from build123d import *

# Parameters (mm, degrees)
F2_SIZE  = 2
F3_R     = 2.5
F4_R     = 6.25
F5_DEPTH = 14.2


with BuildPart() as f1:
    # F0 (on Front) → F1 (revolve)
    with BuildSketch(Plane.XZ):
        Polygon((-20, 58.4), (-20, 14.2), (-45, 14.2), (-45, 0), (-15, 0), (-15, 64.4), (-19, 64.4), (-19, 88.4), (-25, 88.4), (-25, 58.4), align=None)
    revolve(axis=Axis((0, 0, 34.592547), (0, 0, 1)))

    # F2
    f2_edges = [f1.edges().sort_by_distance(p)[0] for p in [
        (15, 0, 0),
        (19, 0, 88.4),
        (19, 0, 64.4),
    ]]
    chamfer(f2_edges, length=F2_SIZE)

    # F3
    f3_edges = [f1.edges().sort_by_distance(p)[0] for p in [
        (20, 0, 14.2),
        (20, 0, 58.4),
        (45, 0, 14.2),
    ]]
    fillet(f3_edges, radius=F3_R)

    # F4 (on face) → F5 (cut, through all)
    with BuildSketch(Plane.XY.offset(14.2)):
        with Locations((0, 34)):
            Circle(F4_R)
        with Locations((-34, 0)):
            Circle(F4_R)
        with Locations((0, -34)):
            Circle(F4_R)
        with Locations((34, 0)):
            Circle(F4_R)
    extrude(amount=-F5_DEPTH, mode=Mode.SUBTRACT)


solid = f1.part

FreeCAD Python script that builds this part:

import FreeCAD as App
import Part
import Sketcher
from FreeCAD import Vector


def edges_at(feature, points):
    """Names of the edges that pass closest to the given points."""
    edges = feature.Shape.Edges
    near = lambda p: min(range(len(edges)), key=lambda i: edges[i].distToShape(Part.Vertex(*p))[0])
    return sorted({f"Edge{near(p) + 1}" for p in points})


def add_polygon(sketch, points):
    """Adds a closed chain of lines whose ends are joined by coincident constraints."""
    first, n = sketch.GeometryCount, len(points)
    for a, b in zip(points, points[1:] + points[:1]):
        sketch.addGeometry(Part.LineSegment(App.Vector(*a, 0), App.Vector(*b, 0)), False)
    for i in range(n):
        sketch.addConstraint(Sketcher.Constraint("Coincident", first + i, 2, first + (i + 1) % n, 1))

doc = App.newDocument("Part")
body = doc.addObject("PartDesign::Body", "Body")

# Sketch on XZ plane
sketch1 = body.newObject("Sketcher::SketchObject", "Sketch")
sketch1.AttachmentSupport = (doc.getObject("XZ_Plane"), [""])
sketch1.MapMode = "FlatFace"
add_polygon(sketch1, [(-20, 58.4), (-20, 14.2), (-45, 14.2), (-45, 0), (-15, 0), (-15, 64.4), (-19, 64.4), (-19, 88.4), (-25, 88.4), (-25, 58.4)])  # lines 0-9
sketch1.addConstraint([
    Sketcher.Constraint("Vertical", 0),
    Sketcher.Constraint("Horizontal", 1),
    Sketcher.Constraint("Vertical", 2),
    Sketcher.Constraint("Horizontal", 3),
    Sketcher.Constraint("Vertical", 4),
    Sketcher.Constraint("Horizontal", 5),
    Sketcher.Constraint("Vertical", 6),
    Sketcher.Constraint("Horizontal", 7),
    Sketcher.Constraint("Vertical", 8),
    Sketcher.Constraint("Horizontal", 9),
    Sketcher.Constraint("PointOnObject", 2, 2, -1),
    Sketcher.Constraint("Equal", 3, 8),
    Sketcher.Constraint("DistanceX", 1, 2, 1, 1, 25.0),
    Sketcher.Constraint("DistanceX", 3, 1, 3, 2, 30.0),
    Sketcher.Constraint("DistanceX", 5, 2, 5, 1, 4.0),
    Sketcher.Constraint("DistanceX", 7, 2, 7, 1, 6.0),
    Sketcher.Constraint("DistanceY", 6, 1, 6, 2, 24.0),
    Sketcher.Constraint("DistanceY", 0, 2, 0, 1, 44.2),
    Sketcher.Constraint("DistanceY", 2, 2, 2, 1, 14.2),
    Sketcher.Constraint("DistanceX", 0, 2, -1, 1, 20.0),
])
revolution = body.newObject("PartDesign::Revolution", "Revolution")
revolution.Profile = sketch1
revolution.ReferenceAxis = (sketch1, ["V_Axis"])
revolution.Angle = 360
doc.recompute()

chamfer = body.newObject("PartDesign::Chamfer", "Chamfer")
chamfer.Base = (revolution, edges_at(revolution, [(15, 0, 0), (19, 0, 88.4), (19, 0, 64.4)]))
chamfer.Size = 2
doc.recompute()

fillet = body.newObject("PartDesign::Fillet", "Fillet")
fillet.Base = (chamfer, edges_at(chamfer, [(20, 0, 14.2), (20, 0, 58.4), (45, 0, 14.2)]))
fillet.Radius = 2.5

# Sketch on XY plane
sketch2 = body.newObject("Sketcher::SketchObject", "Sketch001")
sketch2.AttachmentSupport = (doc.getObject("XY_Plane"), [""])
sketch2.MapMode = "FlatFace"
sketch2.AttachmentOffset = App.Placement(Vector(0, 0, 14.2), App.Rotation())
sketch2.addGeometry([
    Part.Circle(Vector(0, 34, 0), Vector(0, 0, 1), 6),
    Part.Circle(Vector(-34, 0, 0), Vector(0, 0, 1), 6),
    Part.Circle(Vector(0, -34, 0), Vector(0, 0, 1), 6),
    Part.Circle(Vector(34, 0, 0), Vector(0, 0, 1), 6),
], False)
sketch2.addConstraint([
    Sketcher.Constraint("Equal", 0, 1),
    Sketcher.Constraint("Equal", 1, 2),
    Sketcher.Constraint("Equal", 2, 3),
    Sketcher.Constraint("Symmetric", 0, 3, 2, 3, -1, 1),
    Sketcher.Constraint("Symmetric", 1, 3, 3, 3, -1, 1),
    Sketcher.Constraint("PointOnObject", 0, 3, -2),
    Sketcher.Constraint("PointOnObject", 1, 3, -1),
    Sketcher.Constraint("Diameter", 0, 12.5),
    Sketcher.Constraint("DistanceY", -1, 1, 0, 3, 34.0),
    Sketcher.Constraint("DistanceX", 1, 3, -1, 1, 34.0),
])
pocket1 = body.newObject("PartDesign::Pocket", "Pocket")
pocket1.Profile = sketch2
pocket1.Type = "ThroughAll"

doc.recompute()
